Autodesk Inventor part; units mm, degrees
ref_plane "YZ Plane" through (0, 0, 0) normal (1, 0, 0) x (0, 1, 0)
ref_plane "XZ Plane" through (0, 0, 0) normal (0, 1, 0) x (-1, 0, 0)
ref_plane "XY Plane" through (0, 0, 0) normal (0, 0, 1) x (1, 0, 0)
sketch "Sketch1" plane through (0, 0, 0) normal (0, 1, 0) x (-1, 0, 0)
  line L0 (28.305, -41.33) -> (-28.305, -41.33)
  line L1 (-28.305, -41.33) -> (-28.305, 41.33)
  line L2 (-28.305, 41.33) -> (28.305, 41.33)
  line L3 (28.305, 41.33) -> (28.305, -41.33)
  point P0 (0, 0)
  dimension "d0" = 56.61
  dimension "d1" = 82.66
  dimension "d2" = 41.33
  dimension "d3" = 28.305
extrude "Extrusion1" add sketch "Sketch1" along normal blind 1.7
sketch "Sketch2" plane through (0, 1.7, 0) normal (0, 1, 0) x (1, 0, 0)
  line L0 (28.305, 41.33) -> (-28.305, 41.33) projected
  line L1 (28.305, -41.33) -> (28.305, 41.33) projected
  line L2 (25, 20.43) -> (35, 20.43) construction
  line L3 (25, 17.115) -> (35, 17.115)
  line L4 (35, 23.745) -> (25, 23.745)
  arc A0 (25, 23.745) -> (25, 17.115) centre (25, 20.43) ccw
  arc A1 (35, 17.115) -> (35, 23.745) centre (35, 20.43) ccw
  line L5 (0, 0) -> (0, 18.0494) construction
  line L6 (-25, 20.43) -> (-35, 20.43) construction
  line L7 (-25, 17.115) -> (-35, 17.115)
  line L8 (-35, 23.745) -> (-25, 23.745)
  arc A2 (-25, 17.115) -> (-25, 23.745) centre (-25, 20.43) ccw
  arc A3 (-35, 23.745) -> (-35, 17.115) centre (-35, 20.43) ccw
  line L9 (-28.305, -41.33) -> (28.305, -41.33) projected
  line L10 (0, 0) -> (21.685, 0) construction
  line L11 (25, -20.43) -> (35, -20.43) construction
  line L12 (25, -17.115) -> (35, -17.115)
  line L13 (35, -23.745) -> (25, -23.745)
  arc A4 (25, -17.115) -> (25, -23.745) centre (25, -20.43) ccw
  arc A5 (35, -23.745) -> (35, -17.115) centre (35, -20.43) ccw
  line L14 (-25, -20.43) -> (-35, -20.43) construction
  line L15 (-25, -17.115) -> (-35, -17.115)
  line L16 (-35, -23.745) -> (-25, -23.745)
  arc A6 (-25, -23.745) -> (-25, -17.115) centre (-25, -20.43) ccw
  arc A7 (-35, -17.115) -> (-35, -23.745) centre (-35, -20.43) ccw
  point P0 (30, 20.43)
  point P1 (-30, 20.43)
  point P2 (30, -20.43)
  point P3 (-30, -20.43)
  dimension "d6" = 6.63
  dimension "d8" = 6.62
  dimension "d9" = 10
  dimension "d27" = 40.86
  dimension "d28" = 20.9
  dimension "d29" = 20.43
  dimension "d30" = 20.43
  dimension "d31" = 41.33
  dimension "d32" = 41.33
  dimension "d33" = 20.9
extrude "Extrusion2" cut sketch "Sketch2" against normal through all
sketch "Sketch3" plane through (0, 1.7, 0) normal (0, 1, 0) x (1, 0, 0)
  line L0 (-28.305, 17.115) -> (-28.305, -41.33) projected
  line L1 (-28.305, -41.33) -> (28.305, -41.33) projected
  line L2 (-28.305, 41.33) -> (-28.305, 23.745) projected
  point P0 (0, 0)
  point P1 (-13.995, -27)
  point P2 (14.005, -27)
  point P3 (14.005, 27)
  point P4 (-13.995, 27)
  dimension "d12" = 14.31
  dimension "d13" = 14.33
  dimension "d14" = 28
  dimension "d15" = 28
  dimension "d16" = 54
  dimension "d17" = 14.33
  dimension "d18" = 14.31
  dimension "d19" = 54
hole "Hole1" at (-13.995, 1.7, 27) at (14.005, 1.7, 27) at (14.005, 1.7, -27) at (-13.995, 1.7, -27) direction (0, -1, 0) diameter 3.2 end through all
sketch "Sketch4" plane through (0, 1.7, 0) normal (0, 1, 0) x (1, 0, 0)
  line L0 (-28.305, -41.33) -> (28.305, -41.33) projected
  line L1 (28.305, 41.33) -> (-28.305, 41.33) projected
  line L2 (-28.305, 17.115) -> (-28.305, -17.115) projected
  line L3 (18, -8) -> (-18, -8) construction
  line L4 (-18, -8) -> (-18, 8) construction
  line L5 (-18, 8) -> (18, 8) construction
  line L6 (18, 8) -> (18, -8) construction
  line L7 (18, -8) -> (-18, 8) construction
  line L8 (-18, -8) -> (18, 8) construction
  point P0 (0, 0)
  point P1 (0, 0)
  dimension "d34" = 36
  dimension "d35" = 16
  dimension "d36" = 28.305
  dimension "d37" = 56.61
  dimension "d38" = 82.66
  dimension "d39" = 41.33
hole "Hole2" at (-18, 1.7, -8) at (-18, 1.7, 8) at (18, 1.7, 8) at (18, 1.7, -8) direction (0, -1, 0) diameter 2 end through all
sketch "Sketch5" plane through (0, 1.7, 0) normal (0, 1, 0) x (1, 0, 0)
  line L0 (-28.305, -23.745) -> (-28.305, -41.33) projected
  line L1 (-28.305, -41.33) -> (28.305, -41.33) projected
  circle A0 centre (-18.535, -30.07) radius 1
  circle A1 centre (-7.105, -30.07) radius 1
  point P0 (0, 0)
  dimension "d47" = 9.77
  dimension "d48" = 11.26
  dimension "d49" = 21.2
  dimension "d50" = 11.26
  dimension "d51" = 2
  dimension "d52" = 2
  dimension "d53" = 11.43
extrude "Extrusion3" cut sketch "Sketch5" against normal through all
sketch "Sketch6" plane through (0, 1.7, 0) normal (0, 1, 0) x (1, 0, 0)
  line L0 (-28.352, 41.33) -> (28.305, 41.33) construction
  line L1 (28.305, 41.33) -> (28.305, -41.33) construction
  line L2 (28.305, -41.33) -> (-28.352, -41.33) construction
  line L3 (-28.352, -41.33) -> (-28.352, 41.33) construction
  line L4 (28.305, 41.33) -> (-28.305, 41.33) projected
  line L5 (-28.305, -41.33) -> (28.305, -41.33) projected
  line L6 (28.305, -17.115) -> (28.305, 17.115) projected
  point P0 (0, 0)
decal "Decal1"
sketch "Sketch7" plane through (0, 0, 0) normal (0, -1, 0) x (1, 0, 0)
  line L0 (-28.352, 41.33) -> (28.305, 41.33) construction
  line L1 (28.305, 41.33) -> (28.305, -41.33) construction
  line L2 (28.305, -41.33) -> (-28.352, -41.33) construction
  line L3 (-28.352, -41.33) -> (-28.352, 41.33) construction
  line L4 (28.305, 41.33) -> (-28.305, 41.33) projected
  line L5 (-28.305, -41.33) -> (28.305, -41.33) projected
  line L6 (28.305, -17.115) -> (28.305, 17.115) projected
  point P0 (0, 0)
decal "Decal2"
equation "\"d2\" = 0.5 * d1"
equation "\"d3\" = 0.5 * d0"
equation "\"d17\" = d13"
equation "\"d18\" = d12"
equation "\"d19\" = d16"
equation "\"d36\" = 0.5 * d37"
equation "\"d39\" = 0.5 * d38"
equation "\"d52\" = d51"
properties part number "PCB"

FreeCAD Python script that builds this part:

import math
import FreeCAD as App
import Part
import Sketcher
from FreeCAD import Vector


def add_polygon(sketch, points):
    """Adds a closed chain of lines whose ends are joined by coincident constraints."""
    first, n = sketch.GeometryCount, len(points)
    for a, b in zip(points, points[1:] + points[:1]):
        sketch.addGeometry(Part.LineSegment(App.Vector(*a, 0), App.Vector(*b, 0)), False)
    for i in range(n):
        sketch.addConstraint(Sketcher.Constraint("Coincident", first + i, 2, first + (i + 1) % n, 1))

doc = App.newDocument("Part")
body = doc.addObject("PartDesign::Body", "Body")

# Sketch on XZ plane
sketch1 = body.newObject("Sketcher::SketchObject", "Sketch")
sketch1.AttachmentSupport = (doc.getObject("XZ_Plane"), [""])
sketch1.MapMode = "FlatFace"
add_polygon(sketch1, [(28.305, -41.33), (-28.305, -41.33), (-28.305, 41.33), (28.305, 41.33)])  # lines 0-3
sketch1.addConstraint([
    Sketcher.Constraint("Horizontal", 0),
    Sketcher.Constraint("Vertical", 1),
    Sketcher.Constraint("Horizontal", 2),
    Sketcher.Constraint("Vertical", 3),
    Sketcher.Constraint("Symmetric", 0, 2, 2, 2, -1, 1),
    Sketcher.Constraint("DistanceX", 0, 2, 0, 1, 56.61),
    Sketcher.Constraint("DistanceY", 1, 1, 1, 2, 82.66),
])
pad1 = body.newObject("PartDesign::Pad", "Pad")
pad1.Profile = sketch1
pad1.Length = 1.7
pad1.Reversed = True

# Sketch on XZ plane
sketch2 = body.newObject("Sketcher::SketchObject", "Sketch001")
sketch2.AttachmentSupport = (doc.getObject("XZ_Plane"), [""])
sketch2.MapMode = "FlatFace"
sketch2.AttachmentOffset = App.Placement(Vector(0, 0, -1.7), App.Rotation())
sketch2.addGeometry([
    Part.LineSegment(Vector(25, 23.745, 0), Vector(35, 23.745, 0)),  # 0
    Part.ArcOfCircle(Part.Circle(Vector(35, 20.43, 0), Vector(0, 0, 1), 3.315), math.radians(-90), math.radians(90)),  # 1
    Part.LineSegment(Vector(35, 17.115, 0), Vector(25, 17.115, 0)),  # 2
    Part.ArcOfCircle(Part.Circle(Vector(25, 20.43, 0), Vector(0, 0, 1), 3.315), math.radians(90), math.radians(270)),  # 3
    Part.LineSegment(Vector(25, -17.115, 0), Vector(35, -17.115, 0)),  # 4
    Part.ArcOfCircle(Part.Circle(Vector(35, -20.43, 0), Vector(0, 0, 1), 3.315), math.radians(-90), math.radians(90)),  # 5
    Part.LineSegment(Vector(35, -23.745, 0), Vector(25, -23.745, 0)),  # 6
    Part.ArcOfCircle(Part.Circle(Vector(25, -20.43, 0), Vector(0, 0, 1), 3.315), math.radians(90), math.radians(270)),  # 7
    Part.LineSegment(Vector(-35, -17.115, 0), Vector(-25, -17.115, 0)),  # 8
    Part.ArcOfCircle(Part.Circle(Vector(-25, -20.43, 0), Vector(0, 0, 1), 3.315), math.radians(-90), math.radians(90)),  # 9
    Part.LineSegment(Vector(-25, -23.745, 0), Vector(-35, -23.745, 0)),  # 10
    Part.ArcOfCircle(Part.Circle(Vector(-35, -20.43, 0), Vector(0, 0, 1), 3.315), math.radians(90), math.radians(270)),  # 11
    Part.ArcOfCircle(Part.Circle(Vector(-25, 20.43, 0), Vector(0, 0, 1), 3.315), math.radians(-90), math.radians(90)),  # 12
    Part.LineSegment(Vector(-25, 17.115, 0), Vector(-35, 17.115, 0)),  # 13
    Part.ArcOfCircle(Part.Circle(Vector(-35, 20.43, 0), Vector(0, 0, 1), 3.315), math.radians(90), math.radians(270)),  # 14
    Part.LineSegment(Vector(-35, 23.745, 0), Vector(-25, 23.745, 0)),  # 15
], False)
sketch2.addConstraint([
    Sketcher.Constraint("Tangent", 0, 2, 1, 2),
    Sketcher.Constraint("Tangent", 1, 1, 2, 1),
    Sketcher.Constraint("Tangent", 2, 2, 3, 2),
    Sketcher.Constraint("Tangent", 3, 1, 0, 1),
    Sketcher.Constraint("Tangent", 4, 2, 5, 2),
    Sketcher.Constraint("Tangent", 5, 1, 6, 1),
    Sketcher.Constraint("Tangent", 6, 2, 7, 2),
    Sketcher.Constraint("Tangent", 7, 1, 4, 1),
    Sketcher.Constraint("Tangent", 8, 2, 9, 2),
    Sketcher.Constraint("Tangent", 9, 1, 10, 1),
    Sketcher.Constraint("Tangent", 10, 2, 11, 2),
    Sketcher.Constraint("Tangent", 11, 1, 8, 1),
    Sketcher.Constraint("Tangent", 12, 1, 13, 1),
    Sketcher.Constraint("Tangent", 13, 2, 14, 2),
    Sketcher.Constraint("Tangent", 14, 1, 15, 1),
    Sketcher.Constraint("Tangent", 15, 2, 12, 2),
    Sketcher.Constraint("Horizontal", 0),
    Sketcher.Constraint("Horizontal", 2),
    Sketcher.Constraint("Horizontal", 4),
    Sketcher.Constraint("Horizontal", 6),
    Sketcher.Constraint("Horizontal", 8),
    Sketcher.Constraint("Horizontal", 10),
    Sketcher.Constraint("Horizontal", 13),
    Sketcher.Constraint("Horizontal", 15),
    Sketcher.Constraint("Equal", 3, 5),
    Sketcher.Constraint("Equal", 7, 9),
    Sketcher.Constraint("Equal", 11, 12),
    Sketcher.Constraint("Symmetric", 3, 3, 9, 3, -1, 1),
    Sketcher.Constraint("Symmetric", 7, 3, 12, 3, -1, 1),
    Sketcher.Constraint("Symmetric", 7, 3, 9, 3, -2),
    Sketcher.Constraint("Vertical", 1, 3, 5, 3),
    Sketcher.Constraint("Vertical", 11, 3, 14, 3),
    Sketcher.Constraint("Equal", 6, 8),
    Sketcher.Constraint("DistanceX", 0, 1, 0, 2, 10.0),
    Sketcher.Constraint("Radius", 1, 3.315),
    Sketcher.Constraint("DistanceY", -1, 1, 1, 3, 20.43),
    Sketcher.Constraint("DistanceX", -1, 1, 1, 3, 35.0),
])
pocket1 = body.newObject("PartDesign::Pocket", "Pocket")
pocket1.Profile = sketch2
pocket1.Type = "ThroughAll"
pocket1.Reversed = True

# Sketch on XZ plane
sketch3 = body.newObject("Sketcher::SketchObject", "Sketch002")
sketch3.AttachmentSupport = (doc.getObject("XZ_Plane"), [""])
sketch3.MapMode = "FlatFace"
sketch3.AttachmentOffset = App.Placement(Vector(0, 0, -1.7), App.Rotation())
sketch3.addGeometry([
    Part.Circle(Vector(-13.995, 27, 0), Vector(0, 0, 1), 1.6),
    Part.Circle(Vector(14.005, 27, 0), Vector(0, 0, 1), 1.6),
    Part.Circle(Vector(14.005, -27, 0), Vector(0, 0, 1), 1.6),
    Part.Circle(Vector(-13.995, -27, 0), Vector(0, 0, 1), 1.6),
], False)
sketch3.addConstraint([
    Sketcher.Constraint("Equal", 0, 1),
    Sketcher.Constraint("Equal", 1, 2),
    Sketcher.Constraint("Equal", 2, 3),
    Sketcher.Constraint("Symmetric", 1, 3, 2, 3, -1),
    Sketcher.Constraint("Symmetric", 0, 3, 3, 3, -1),
    Sketcher.Constraint("Horizontal", 0, 3, 1, 3),
    Sketcher.Constraint("Diameter", 0, 3.2),
    Sketcher.Constraint("DistanceY", -1, 1, 0, 3, 27.0),
    Sketcher.Constraint("DistanceX", 0, 3, 1, 3, 28.0),
    Sketcher.Constraint("DistanceX", 0, 3, -1, 1, 13.995),
])
doc.recompute()
hole = body.newObject("PartDesign::Hole", "Hole")
hole.Profile = sketch3
hole.ThreadType = "None"
hole.Diameter = 3.2
hole.DepthType = "ThroughAll"
hole.Reversed = True

# Sketch on XZ plane
sketch4 = body.newObject("Sketcher::SketchObject", "Sketch003")
sketch4.AttachmentSupport = (doc.getObject("XZ_Plane"), [""])
sketch4.MapMode = "FlatFace"
sketch4.AttachmentOffset = App.Placement(Vector(0, 0, -1.7), App.Rotation())
sketch4.addGeometry([
    Part.Circle(Vector(-18, -8, 0), Vector(0, 0, 1), 1),
    Part.Circle(Vector(-18, 8, 0), Vector(0, 0, 1), 1),
    Part.Circle(Vector(18, 8, 0), Vector(0, 0, 1), 1),
    Part.Circle(Vector(18, -8, 0), Vector(0, 0, 1), 1),
], False)
sketch4.addConstraint([
    Sketcher.Constraint("Equal", 0, 1),
    Sketcher.Constraint("Equal", 1, 2),
    Sketcher.Constraint("Equal", 2, 3),
    Sketcher.Constraint("Symmetric", 0, 3, 2, 3, -1, 1),
    Sketcher.Constraint("Symmetric", 1, 3, 3, 3, -1, 1),
    Sketcher.Constraint("Symmetric", 1, 3, 2, 3, -2),
    Sketcher.Constraint("Diameter", 0, 2.0),
    Sketcher.Constraint("DistanceX", 0, 3, -1, 1, 18.0),
    Sketcher.Constraint("DistanceY", 0, 3, -1, 1, 8.0),
])
doc.recompute()
hole2 = body.newObject("PartDesign::Hole", "Hole001")
hole2.Profile = sketch4
hole2.ThreadType = "None"
hole2.Diameter = 2
hole2.DepthType = "ThroughAll"
hole2.Reversed = True

# Sketch on XZ plane
sketch5 = body.newObject("Sketcher::SketchObject", "Sketch004")
sketch5.AttachmentSupport = (doc.getObject("XZ_Plane"), [""])
sketch5.MapMode = "FlatFace"
sketch5.AttachmentOffset = App.Placement(Vector(0, 0, -1.7), App.Rotation())
sketch5.addGeometry([
    Part.Circle(Vector(-18.535, 30.07, 0), Vector(0, 0, 1), 1),
    Part.Circle(Vector(-7.105, 30.07, 0), Vector(0, 0, 1), 1),
], False)
sketch5.addConstraint([
    Sketcher.Constraint("Equal", 0, 1),
    Sketcher.Constraint("Horizontal", 0, 3, 1, 3),
    Sketcher.Constraint("Diameter", 0, 2.0),
    Sketcher.Constraint("DistanceX", 0, 3, 1, 3, 11.43),
    Sketcher.Constraint("DistanceY", -1, 1, 0, 3, 30.07),
    Sketcher.Constraint("DistanceX", 0, 3, -1, 1, 18.535),
])
pocket2 = body.newObject("PartDesign::Pocket", "Pocket001")
pocket2.Profile = sketch5
pocket2.Type = "ThroughAll"
pocket2.Reversed = True

doc.recompute()
